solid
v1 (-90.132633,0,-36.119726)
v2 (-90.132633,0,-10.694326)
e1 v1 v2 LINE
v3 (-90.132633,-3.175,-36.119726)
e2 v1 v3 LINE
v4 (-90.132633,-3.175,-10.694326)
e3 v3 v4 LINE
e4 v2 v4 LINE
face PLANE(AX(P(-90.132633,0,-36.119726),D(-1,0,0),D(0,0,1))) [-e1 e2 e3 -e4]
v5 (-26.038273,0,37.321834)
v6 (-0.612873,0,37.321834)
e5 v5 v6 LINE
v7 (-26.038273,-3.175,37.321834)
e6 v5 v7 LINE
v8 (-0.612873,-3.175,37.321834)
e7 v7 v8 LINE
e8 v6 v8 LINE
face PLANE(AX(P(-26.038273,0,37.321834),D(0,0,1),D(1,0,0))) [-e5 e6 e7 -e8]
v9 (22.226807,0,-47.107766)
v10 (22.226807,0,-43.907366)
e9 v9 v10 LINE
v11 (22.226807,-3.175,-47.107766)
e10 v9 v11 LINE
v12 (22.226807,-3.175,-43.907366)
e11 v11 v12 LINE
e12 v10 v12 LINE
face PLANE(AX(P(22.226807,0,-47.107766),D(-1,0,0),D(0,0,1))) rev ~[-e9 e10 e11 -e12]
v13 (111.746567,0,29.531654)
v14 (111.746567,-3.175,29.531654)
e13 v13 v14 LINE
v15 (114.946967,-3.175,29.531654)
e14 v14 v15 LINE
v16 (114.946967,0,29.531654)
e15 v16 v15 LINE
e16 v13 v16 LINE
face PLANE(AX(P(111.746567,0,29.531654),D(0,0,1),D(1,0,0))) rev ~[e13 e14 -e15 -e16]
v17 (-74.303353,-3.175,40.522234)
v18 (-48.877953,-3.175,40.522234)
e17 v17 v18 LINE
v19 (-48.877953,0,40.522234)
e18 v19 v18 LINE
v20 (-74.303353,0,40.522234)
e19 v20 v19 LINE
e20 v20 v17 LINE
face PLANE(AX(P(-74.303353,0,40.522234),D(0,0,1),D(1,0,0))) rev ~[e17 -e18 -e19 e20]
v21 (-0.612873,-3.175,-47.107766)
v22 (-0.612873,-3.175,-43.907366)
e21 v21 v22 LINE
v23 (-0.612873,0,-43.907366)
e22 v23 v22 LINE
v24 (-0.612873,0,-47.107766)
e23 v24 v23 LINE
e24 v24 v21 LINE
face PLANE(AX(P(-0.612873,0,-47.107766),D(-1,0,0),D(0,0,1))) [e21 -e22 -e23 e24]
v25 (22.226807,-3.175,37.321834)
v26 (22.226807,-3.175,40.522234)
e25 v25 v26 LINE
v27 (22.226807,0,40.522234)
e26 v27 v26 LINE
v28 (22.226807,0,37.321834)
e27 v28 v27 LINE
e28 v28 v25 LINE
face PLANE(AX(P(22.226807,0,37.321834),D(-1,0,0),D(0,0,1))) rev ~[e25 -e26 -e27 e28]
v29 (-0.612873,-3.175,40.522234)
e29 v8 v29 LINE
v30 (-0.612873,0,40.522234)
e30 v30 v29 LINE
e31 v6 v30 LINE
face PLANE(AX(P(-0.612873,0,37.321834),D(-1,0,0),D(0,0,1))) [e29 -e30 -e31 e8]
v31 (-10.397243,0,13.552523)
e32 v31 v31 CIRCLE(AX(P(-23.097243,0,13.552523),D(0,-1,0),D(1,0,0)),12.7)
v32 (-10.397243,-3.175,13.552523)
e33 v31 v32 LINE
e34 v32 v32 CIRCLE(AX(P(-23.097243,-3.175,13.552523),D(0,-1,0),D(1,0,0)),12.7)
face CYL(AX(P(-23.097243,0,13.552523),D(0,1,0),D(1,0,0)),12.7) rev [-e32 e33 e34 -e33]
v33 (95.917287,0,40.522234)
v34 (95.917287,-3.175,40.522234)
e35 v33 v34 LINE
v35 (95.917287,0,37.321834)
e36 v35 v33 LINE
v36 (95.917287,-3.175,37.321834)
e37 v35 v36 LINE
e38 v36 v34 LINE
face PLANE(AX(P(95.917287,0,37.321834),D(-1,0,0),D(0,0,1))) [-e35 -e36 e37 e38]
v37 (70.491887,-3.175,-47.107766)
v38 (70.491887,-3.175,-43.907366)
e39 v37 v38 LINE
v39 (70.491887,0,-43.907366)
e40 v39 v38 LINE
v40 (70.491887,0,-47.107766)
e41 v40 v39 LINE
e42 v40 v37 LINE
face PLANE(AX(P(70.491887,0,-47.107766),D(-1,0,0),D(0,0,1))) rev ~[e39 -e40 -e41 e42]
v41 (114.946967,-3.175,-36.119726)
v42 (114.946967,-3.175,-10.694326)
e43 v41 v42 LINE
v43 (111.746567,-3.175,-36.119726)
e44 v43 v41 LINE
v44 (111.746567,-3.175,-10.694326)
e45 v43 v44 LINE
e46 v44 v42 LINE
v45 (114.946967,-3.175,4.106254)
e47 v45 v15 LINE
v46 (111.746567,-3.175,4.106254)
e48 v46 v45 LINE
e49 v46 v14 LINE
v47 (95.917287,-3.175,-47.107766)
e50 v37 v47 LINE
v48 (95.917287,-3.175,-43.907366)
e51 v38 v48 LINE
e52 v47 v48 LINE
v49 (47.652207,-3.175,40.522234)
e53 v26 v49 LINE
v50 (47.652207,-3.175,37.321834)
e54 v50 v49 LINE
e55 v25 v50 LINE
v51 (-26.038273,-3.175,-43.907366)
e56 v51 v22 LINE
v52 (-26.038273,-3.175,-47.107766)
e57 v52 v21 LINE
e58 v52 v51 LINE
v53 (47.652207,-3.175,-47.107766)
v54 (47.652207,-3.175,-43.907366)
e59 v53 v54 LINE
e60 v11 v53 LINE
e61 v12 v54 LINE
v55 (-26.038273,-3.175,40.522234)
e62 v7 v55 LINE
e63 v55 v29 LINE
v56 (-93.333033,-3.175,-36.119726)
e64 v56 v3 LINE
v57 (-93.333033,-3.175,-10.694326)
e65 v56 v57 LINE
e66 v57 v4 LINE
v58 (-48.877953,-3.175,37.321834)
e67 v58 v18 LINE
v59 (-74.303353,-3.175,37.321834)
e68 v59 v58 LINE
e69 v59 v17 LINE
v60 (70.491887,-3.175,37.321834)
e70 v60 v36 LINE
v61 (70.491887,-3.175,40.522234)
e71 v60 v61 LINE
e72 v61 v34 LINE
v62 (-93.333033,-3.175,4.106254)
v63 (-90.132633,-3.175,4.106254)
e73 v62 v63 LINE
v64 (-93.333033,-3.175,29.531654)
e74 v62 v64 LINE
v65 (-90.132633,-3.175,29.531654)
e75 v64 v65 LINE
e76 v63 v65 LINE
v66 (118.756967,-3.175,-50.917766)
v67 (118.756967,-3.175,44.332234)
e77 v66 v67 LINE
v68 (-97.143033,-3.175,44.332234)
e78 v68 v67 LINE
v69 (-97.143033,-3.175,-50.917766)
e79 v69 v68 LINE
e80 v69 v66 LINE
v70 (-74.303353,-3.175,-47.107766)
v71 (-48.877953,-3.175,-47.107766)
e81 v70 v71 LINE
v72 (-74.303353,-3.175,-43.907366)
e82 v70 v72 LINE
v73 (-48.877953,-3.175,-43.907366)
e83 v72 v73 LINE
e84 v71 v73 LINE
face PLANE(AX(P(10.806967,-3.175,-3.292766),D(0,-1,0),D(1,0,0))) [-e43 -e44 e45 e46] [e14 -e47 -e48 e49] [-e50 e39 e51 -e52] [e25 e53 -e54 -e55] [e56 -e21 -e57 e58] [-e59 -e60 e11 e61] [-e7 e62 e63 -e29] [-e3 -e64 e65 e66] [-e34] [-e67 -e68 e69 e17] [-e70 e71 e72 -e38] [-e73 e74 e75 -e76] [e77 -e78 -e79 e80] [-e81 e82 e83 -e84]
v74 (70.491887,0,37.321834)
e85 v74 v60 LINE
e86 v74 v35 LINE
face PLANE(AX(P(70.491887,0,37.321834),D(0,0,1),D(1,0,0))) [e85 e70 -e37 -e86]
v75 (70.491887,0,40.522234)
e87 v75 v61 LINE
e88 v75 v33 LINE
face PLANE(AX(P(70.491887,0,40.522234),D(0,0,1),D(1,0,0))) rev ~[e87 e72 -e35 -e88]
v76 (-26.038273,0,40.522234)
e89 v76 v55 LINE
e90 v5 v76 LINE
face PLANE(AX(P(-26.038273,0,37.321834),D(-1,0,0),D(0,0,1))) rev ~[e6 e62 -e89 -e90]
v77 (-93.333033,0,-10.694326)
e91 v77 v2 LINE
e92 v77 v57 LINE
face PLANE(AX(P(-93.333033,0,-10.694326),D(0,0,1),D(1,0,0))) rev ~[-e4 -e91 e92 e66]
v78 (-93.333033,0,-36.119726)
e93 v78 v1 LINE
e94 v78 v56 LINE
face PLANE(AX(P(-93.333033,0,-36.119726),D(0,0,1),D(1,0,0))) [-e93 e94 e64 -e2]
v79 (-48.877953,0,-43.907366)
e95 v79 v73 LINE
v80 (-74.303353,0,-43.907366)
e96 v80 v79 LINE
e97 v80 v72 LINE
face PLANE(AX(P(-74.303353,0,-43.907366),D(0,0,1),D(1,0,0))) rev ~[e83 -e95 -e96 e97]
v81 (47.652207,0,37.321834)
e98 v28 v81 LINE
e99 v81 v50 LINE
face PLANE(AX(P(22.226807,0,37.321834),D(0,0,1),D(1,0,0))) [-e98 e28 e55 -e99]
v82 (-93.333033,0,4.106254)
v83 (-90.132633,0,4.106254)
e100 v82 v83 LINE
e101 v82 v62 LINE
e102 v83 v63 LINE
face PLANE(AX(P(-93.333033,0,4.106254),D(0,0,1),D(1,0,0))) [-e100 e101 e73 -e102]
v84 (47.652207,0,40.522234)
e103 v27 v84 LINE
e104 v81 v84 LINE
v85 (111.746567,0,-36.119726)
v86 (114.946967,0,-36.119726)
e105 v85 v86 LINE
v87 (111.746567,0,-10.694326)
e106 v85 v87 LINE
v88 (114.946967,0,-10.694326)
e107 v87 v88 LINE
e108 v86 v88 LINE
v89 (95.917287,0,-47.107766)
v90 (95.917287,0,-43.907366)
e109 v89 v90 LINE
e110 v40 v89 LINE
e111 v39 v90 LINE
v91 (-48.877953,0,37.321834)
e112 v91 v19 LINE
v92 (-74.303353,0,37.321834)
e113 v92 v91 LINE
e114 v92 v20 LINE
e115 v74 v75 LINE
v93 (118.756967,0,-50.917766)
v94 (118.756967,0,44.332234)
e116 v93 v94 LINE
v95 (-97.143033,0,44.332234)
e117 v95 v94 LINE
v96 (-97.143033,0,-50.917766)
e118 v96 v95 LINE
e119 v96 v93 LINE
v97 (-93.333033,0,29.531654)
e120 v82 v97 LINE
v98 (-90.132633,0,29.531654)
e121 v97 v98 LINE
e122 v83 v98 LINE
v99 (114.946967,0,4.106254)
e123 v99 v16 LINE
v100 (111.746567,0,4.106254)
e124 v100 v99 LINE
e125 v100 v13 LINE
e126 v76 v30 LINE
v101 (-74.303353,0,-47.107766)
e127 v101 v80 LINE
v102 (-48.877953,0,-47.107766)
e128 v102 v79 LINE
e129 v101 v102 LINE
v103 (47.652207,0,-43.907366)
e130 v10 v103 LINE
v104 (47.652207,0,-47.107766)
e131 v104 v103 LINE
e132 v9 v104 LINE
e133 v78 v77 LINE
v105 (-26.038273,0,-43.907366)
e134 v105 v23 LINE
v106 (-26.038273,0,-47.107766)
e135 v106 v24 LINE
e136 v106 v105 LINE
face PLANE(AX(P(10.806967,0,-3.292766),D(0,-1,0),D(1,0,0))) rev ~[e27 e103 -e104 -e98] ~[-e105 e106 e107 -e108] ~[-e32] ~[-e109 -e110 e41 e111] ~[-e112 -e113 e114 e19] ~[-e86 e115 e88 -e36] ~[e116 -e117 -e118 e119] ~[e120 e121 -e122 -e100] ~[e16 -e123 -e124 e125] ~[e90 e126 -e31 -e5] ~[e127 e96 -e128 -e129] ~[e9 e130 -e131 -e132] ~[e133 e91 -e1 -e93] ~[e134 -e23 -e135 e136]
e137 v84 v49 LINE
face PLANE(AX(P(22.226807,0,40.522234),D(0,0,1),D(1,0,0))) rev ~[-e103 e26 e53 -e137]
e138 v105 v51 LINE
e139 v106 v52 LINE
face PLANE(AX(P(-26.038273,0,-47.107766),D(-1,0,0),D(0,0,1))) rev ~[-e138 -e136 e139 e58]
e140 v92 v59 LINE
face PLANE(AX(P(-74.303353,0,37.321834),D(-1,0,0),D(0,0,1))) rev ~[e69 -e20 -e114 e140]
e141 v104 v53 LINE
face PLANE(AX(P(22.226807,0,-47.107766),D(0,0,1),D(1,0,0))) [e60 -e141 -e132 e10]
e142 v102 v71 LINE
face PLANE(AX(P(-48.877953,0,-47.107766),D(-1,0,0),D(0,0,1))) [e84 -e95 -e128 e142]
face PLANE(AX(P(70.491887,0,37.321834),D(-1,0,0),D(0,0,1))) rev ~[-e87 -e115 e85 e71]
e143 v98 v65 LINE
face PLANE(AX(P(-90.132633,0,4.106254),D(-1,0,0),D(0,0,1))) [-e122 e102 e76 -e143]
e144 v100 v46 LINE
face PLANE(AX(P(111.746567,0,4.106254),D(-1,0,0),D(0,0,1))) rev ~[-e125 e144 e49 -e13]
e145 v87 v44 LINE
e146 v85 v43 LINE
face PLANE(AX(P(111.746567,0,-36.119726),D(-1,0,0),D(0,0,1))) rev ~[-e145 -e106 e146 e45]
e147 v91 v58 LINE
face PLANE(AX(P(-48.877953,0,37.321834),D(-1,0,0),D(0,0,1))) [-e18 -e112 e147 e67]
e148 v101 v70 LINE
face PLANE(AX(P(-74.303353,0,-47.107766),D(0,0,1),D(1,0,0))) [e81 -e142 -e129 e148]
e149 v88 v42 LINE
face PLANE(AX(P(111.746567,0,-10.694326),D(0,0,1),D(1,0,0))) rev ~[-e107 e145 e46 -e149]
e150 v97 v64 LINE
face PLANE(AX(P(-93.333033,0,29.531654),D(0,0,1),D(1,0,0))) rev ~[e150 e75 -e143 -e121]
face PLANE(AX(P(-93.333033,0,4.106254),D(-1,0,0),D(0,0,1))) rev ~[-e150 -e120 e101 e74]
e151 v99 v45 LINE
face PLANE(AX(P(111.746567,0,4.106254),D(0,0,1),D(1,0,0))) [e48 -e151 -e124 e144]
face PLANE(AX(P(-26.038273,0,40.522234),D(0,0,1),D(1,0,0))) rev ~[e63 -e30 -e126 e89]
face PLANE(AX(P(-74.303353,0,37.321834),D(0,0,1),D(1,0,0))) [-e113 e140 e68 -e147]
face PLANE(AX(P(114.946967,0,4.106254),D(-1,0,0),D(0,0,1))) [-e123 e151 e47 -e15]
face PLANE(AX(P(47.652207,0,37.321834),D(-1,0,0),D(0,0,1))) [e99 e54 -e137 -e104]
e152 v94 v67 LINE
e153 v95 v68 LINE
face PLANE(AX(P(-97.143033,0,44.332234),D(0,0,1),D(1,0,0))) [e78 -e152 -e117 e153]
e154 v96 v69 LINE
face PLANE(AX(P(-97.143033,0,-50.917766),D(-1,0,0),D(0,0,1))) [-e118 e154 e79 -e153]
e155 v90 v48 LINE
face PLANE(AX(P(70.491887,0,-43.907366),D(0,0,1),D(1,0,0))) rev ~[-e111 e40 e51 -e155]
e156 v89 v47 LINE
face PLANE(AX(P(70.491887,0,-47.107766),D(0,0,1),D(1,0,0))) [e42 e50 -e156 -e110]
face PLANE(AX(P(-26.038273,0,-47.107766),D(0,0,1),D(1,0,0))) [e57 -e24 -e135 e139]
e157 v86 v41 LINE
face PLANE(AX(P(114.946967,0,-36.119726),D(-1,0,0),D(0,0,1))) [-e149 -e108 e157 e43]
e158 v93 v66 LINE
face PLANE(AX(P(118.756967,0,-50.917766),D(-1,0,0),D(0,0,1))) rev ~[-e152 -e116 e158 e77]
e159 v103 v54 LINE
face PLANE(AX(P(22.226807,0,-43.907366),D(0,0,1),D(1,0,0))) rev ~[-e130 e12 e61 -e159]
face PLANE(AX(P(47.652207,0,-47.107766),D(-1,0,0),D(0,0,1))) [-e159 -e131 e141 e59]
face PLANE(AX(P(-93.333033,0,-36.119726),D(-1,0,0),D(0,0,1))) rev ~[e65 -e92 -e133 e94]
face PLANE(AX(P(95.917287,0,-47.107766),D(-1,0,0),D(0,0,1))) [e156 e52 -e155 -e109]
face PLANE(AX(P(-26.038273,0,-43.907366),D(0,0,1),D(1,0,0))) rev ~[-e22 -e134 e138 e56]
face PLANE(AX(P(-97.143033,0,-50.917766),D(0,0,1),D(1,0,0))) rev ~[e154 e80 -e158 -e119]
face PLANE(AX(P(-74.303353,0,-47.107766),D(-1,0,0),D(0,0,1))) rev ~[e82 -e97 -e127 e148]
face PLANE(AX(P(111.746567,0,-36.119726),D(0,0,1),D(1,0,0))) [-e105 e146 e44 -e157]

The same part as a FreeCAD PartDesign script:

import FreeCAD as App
import Part
import Sketcher

V = App.Vector
Q = App.Units.Quantity


def add_polygon(sketch, points):
    """Adds a closed chain of lines whose ends are joined by coincident constraints."""
    first, n = sketch.GeometryCount, len(points)
    for a, b in zip(points, points[1:] + points[:1]):
        sketch.addGeometry(Part.LineSegment(App.Vector(*a, 0), App.Vector(*b, 0)), False)
    for i in range(n):
        sketch.addConstraint(Sketcher.Constraint("Coincident", first + i, 2, first + (i + 1) % n, 1))

doc = App.newDocument("Part")
body = doc.addObject("PartDesign::Body", "Body")

# Sketch on XZ plane
sketch1 = body.newObject("Sketcher::SketchObject", "Sketch")
sketch1.AttachmentSupport = (doc.getObject("XZ_Plane"), [""])
sketch1.MapMode = "FlatFace"
add_polygon(sketch1, [(-97.1, 44.3), (-97.1, -50.9), (118.8, -50.9), (118.8, 44.3)])  # lines 0-3
add_polygon(sketch1, [(-48.9, -47.1), (-74.3, -47.1), (-74.3, -43.9), (-48.9, -43.9)])  # lines 4-7
add_polygon(sketch1, [(-0.6, -47.1), (-26, -47.1), (-26, -43.9), (-0.6, -43.9)])  # lines 8-11
add_polygon(sketch1, [(-90.1, -36.1), (-93.3, -36.1), (-93.3, -10.7), (-90.1, -10.7)])  # lines 12-15
add_polygon(sketch1, [(47.7, -47.1), (22.2, -47.1), (22.2, -43.9), (47.7, -43.9)])  # lines 16-19
add_polygon(sketch1, [(95.9, -47.1), (70.5, -47.1), (70.5, -43.9), (95.9, -43.9)])  # lines 20-23
add_polygon(sketch1, [(114.9, -36.1), (111.7, -36.1), (111.7, -10.7), (114.9, -10.7)])  # lines 24-27
add_polygon(sketch1, [(-90.1, 4.1), (-93.3, 4.1), (-93.3, 29.5), (-90.1, 29.5)])  # lines 28-31
sketch1.addGeometry(Part.Circle(V(-23.1, 13.6, 0), V(0, 0, 1), 12.7), False)  # 32
add_polygon(sketch1, [(-48.9, 37.3), (-74.3, 37.3), (-74.3, 40.5), (-48.9, 40.5)])  # lines 33-36
add_polygon(sketch1, [(-0.6, 37.3), (-26, 37.3), (-26, 40.5), (-0.6, 40.5)])  # lines 37-40
add_polygon(sketch1, [(114.9, 4.1), (111.7, 4.1), (111.7, 29.5), (114.9, 29.5)])  # lines 41-44
add_polygon(sketch1, [(47.7, 37.3), (22.2, 37.3), (22.2, 40.5), (47.7, 40.5)])  # lines 45-48
add_polygon(sketch1, [(95.9, 37.3), (70.5, 37.3), (70.5, 40.5), (95.9, 40.5)])  # lines 49-52
sketch1.addConstraint([
    Sketcher.Constraint("Vertical", 0),
    Sketcher.Constraint("Horizontal", 1),
    Sketcher.Constraint("Vertical", 2),
    Sketcher.Constraint("Horizontal", 3),
    Sketcher.Constraint("Horizontal", 4),
    Sketcher.Constraint("Vertical", 5),
    Sketcher.Constraint("Horizontal", 6),
    Sketcher.Constraint("Vertical", 7),
    Sketcher.Constraint("Horizontal", 8),
    Sketcher.Constraint("Vertical", 9),
    Sketcher.Constraint("Horizontal", 10),
    Sketcher.Constraint("Vertical", 11),
    Sketcher.Constraint("Horizontal", 12),
    Sketcher.Constraint("Vertical", 13),
    Sketcher.Constraint("Horizontal", 14),
    Sketcher.Constraint("Vertical", 15),
    Sketcher.Constraint("Horizontal", 16),
    Sketcher.Constraint("Vertical", 17),
    Sketcher.Constraint("Horizontal", 18),
    Sketcher.Constraint("Vertical", 19),
    Sketcher.Constraint("Horizontal", 20),
    Sketcher.Constraint("Vertical", 21),
    Sketcher.Constraint("Horizontal", 22),
    Sketcher.Constraint("Vertical", 23),
    Sketcher.Constraint("Horizontal", 24),
    Sketcher.Constraint("Vertical", 25),
    Sketcher.Constraint("Horizontal", 26),
    Sketcher.Constraint("Vertical", 27),
    Sketcher.Constraint("Horizontal", 28),
    Sketcher.Constraint("Vertical", 29),
    Sketcher.Constraint("Horizontal", 30),
    Sketcher.Constraint("Vertical", 31),
    Sketcher.Constraint("Horizontal", 33),
    Sketcher.Constraint("Vertical", 34),
    Sketcher.Constraint("Horizontal", 35),
    Sketcher.Constraint("Vertical", 36),
    Sketcher.Constraint("Horizontal", 37),
    Sketcher.Constraint("Vertical", 38),
    Sketcher.Constraint("Horizontal", 39),
    Sketcher.Constraint("Vertical", 40),
    Sketcher.Constraint("Horizontal", 41),
    Sketcher.Constraint("Vertical", 42),
    Sketcher.Constraint("Horizontal", 43),
    Sketcher.Constraint("Vertical", 44),
    Sketcher.Constraint("Horizontal", 45),
    Sketcher.Constraint("Vertical", 46),
    Sketcher.Constraint("Horizontal", 47),
    Sketcher.Constraint("Vertical", 48),
    Sketcher.Constraint("Horizontal", 49),
    Sketcher.Constraint("Vertical", 50),
    Sketcher.Constraint("Horizontal", 51),
    Sketcher.Constraint("Vertical", 52),
    Sketcher.Constraint("Horizontal", 7, 2, 8, 2),
    Sketcher.Constraint("Horizontal", 6, 2, 9, 2),
    Sketcher.Constraint("Horizontal", 11, 2, 16, 2),
    Sketcher.Constraint("Horizontal", 10, 2, 17, 2),
    Sketcher.Constraint("Horizontal", 19, 2, 20, 2),
    Sketcher.Constraint("Horizontal", 18, 2, 21, 2),
    Sketcher.Constraint("Horizontal", 15, 2, 24, 2),
    Sketcher.Constraint("Horizontal", 14, 2, 25, 2),
    Sketcher.Constraint("Horizontal", 36, 2, 37, 2),
    Sketcher.Constraint("Horizontal", 35, 2, 38, 2),
    Sketcher.Constraint("Horizontal", 31, 2, 41, 2),
    Sketcher.Constraint("Horizontal", 30, 2, 42, 2),
    Sketcher.Constraint("Horizontal", 40, 2, 45, 2),
    Sketcher.Constraint("Horizontal", 39, 2, 46, 2),
    Sketcher.Constraint("Horizontal", 48, 2, 49, 2),
    Sketcher.Constraint("Horizontal", 47, 2, 50, 2),
    Sketcher.Constraint("Vertical", 13, 2, 28, 2),
    Sketcher.Constraint("Vertical", 15, 2, 30, 2),
    Sketcher.Constraint("Vertical", 5, 2, 33, 2),
    Sketcher.Constraint("Vertical", 7, 2, 35, 2),
    Sketcher.Constraint("Vertical", 9, 2, 37, 2),
    Sketcher.Constraint("Vertical", 11, 2, 39, 2),
    Sketcher.Constraint("Vertical", 25, 2, 41, 2),
    Sketcher.Constraint("Vertical", 27, 2, 43, 2),
    Sketcher.Constraint("Vertical", 17, 2, 45, 2),
    Sketcher.Constraint("Vertical", 19, 2, 47, 2),
    Sketcher.Constraint("Vertical", 21, 2, 49, 2),
    Sketcher.Constraint("Vertical", 23, 2, 51, 2),
    Sketcher.Constraint("Equal", 6, 8),
    Sketcher.Constraint("Equal", 10, 16),
    Sketcher.Constraint("Equal", 18, 20),
    Sketcher.Constraint("Equal", 14, 24),
    Sketcher.Constraint("Equal", 43, 5),
    Sketcher.Constraint("Equal", 51, 13),
    Sketcher.Constraint("Equal", 27, 29),
    Sketcher.Constraint("Equal", 23, 34),
    Sketcher.Constraint("Diameter", 32, Q("1 in")),
    Sketcher.Constraint("DistanceX", 1, 1, 1, 2, Q("8.5 in")),
    Sketcher.Constraint("DistanceY", 0, 2, 0, 1, Q("3.75 in")),
    Sketcher.Constraint("DistanceY", 4, 2, 3, 2, Q("3.6 in")),
    Sketcher.Constraint("DistanceX", 4, 2, 4, 1, Q("1.001 in")),
    Sketcher.Constraint("DistanceX", 12, 2, 12, 1, Q("0.126 in")),
    Sketcher.Constraint("DistanceX", 0, 2, 12, 2, Q("0.15 in")),
    Sketcher.Constraint("DistanceX", 26, 2, 1, 2, Q("0.15 in")),
    Sketcher.Constraint("DistanceY", 34, 2, 3, 2, Q("0.15 in")),
    Sketcher.Constraint("DistanceX", 0, 2, 4, 2, Q("0.8992 in")),
    Sketcher.Constraint("DistanceX", 7, 2, 8, 2, Q("0.8992 in")),
    Sketcher.Constraint("DistanceY", 0, 2, 12, 2, Q("0.5826 in")),
    Sketcher.Constraint("DistanceX", 11, 2, 16, 2, Q("0.8992 in")),
    Sketcher.Constraint("DistanceX", 19, 2, 20, 2, Q("0.8992 in")),
    Sketcher.Constraint("DistanceY", 13, 2, 28, 2, Q("0.5827 in")),
    Sketcher.Constraint("DistanceX", 0, 2, 32, 3, 74.04579),
    Sketcher.Constraint("DistanceY", 0, 2, 32, 3, 64.470289),
    Sketcher.Constraint("DistanceX", 32, 3, -1, 1, 23.097243),
    Sketcher.Constraint("DistanceY", -1, 1, 32, 3, 13.552523),
])
pad1 = body.newObject("PartDesign::Pad", "Pad")
pad1.Profile = sketch1
pad1.Length = Q("0.125 in")

doc.recompute()
